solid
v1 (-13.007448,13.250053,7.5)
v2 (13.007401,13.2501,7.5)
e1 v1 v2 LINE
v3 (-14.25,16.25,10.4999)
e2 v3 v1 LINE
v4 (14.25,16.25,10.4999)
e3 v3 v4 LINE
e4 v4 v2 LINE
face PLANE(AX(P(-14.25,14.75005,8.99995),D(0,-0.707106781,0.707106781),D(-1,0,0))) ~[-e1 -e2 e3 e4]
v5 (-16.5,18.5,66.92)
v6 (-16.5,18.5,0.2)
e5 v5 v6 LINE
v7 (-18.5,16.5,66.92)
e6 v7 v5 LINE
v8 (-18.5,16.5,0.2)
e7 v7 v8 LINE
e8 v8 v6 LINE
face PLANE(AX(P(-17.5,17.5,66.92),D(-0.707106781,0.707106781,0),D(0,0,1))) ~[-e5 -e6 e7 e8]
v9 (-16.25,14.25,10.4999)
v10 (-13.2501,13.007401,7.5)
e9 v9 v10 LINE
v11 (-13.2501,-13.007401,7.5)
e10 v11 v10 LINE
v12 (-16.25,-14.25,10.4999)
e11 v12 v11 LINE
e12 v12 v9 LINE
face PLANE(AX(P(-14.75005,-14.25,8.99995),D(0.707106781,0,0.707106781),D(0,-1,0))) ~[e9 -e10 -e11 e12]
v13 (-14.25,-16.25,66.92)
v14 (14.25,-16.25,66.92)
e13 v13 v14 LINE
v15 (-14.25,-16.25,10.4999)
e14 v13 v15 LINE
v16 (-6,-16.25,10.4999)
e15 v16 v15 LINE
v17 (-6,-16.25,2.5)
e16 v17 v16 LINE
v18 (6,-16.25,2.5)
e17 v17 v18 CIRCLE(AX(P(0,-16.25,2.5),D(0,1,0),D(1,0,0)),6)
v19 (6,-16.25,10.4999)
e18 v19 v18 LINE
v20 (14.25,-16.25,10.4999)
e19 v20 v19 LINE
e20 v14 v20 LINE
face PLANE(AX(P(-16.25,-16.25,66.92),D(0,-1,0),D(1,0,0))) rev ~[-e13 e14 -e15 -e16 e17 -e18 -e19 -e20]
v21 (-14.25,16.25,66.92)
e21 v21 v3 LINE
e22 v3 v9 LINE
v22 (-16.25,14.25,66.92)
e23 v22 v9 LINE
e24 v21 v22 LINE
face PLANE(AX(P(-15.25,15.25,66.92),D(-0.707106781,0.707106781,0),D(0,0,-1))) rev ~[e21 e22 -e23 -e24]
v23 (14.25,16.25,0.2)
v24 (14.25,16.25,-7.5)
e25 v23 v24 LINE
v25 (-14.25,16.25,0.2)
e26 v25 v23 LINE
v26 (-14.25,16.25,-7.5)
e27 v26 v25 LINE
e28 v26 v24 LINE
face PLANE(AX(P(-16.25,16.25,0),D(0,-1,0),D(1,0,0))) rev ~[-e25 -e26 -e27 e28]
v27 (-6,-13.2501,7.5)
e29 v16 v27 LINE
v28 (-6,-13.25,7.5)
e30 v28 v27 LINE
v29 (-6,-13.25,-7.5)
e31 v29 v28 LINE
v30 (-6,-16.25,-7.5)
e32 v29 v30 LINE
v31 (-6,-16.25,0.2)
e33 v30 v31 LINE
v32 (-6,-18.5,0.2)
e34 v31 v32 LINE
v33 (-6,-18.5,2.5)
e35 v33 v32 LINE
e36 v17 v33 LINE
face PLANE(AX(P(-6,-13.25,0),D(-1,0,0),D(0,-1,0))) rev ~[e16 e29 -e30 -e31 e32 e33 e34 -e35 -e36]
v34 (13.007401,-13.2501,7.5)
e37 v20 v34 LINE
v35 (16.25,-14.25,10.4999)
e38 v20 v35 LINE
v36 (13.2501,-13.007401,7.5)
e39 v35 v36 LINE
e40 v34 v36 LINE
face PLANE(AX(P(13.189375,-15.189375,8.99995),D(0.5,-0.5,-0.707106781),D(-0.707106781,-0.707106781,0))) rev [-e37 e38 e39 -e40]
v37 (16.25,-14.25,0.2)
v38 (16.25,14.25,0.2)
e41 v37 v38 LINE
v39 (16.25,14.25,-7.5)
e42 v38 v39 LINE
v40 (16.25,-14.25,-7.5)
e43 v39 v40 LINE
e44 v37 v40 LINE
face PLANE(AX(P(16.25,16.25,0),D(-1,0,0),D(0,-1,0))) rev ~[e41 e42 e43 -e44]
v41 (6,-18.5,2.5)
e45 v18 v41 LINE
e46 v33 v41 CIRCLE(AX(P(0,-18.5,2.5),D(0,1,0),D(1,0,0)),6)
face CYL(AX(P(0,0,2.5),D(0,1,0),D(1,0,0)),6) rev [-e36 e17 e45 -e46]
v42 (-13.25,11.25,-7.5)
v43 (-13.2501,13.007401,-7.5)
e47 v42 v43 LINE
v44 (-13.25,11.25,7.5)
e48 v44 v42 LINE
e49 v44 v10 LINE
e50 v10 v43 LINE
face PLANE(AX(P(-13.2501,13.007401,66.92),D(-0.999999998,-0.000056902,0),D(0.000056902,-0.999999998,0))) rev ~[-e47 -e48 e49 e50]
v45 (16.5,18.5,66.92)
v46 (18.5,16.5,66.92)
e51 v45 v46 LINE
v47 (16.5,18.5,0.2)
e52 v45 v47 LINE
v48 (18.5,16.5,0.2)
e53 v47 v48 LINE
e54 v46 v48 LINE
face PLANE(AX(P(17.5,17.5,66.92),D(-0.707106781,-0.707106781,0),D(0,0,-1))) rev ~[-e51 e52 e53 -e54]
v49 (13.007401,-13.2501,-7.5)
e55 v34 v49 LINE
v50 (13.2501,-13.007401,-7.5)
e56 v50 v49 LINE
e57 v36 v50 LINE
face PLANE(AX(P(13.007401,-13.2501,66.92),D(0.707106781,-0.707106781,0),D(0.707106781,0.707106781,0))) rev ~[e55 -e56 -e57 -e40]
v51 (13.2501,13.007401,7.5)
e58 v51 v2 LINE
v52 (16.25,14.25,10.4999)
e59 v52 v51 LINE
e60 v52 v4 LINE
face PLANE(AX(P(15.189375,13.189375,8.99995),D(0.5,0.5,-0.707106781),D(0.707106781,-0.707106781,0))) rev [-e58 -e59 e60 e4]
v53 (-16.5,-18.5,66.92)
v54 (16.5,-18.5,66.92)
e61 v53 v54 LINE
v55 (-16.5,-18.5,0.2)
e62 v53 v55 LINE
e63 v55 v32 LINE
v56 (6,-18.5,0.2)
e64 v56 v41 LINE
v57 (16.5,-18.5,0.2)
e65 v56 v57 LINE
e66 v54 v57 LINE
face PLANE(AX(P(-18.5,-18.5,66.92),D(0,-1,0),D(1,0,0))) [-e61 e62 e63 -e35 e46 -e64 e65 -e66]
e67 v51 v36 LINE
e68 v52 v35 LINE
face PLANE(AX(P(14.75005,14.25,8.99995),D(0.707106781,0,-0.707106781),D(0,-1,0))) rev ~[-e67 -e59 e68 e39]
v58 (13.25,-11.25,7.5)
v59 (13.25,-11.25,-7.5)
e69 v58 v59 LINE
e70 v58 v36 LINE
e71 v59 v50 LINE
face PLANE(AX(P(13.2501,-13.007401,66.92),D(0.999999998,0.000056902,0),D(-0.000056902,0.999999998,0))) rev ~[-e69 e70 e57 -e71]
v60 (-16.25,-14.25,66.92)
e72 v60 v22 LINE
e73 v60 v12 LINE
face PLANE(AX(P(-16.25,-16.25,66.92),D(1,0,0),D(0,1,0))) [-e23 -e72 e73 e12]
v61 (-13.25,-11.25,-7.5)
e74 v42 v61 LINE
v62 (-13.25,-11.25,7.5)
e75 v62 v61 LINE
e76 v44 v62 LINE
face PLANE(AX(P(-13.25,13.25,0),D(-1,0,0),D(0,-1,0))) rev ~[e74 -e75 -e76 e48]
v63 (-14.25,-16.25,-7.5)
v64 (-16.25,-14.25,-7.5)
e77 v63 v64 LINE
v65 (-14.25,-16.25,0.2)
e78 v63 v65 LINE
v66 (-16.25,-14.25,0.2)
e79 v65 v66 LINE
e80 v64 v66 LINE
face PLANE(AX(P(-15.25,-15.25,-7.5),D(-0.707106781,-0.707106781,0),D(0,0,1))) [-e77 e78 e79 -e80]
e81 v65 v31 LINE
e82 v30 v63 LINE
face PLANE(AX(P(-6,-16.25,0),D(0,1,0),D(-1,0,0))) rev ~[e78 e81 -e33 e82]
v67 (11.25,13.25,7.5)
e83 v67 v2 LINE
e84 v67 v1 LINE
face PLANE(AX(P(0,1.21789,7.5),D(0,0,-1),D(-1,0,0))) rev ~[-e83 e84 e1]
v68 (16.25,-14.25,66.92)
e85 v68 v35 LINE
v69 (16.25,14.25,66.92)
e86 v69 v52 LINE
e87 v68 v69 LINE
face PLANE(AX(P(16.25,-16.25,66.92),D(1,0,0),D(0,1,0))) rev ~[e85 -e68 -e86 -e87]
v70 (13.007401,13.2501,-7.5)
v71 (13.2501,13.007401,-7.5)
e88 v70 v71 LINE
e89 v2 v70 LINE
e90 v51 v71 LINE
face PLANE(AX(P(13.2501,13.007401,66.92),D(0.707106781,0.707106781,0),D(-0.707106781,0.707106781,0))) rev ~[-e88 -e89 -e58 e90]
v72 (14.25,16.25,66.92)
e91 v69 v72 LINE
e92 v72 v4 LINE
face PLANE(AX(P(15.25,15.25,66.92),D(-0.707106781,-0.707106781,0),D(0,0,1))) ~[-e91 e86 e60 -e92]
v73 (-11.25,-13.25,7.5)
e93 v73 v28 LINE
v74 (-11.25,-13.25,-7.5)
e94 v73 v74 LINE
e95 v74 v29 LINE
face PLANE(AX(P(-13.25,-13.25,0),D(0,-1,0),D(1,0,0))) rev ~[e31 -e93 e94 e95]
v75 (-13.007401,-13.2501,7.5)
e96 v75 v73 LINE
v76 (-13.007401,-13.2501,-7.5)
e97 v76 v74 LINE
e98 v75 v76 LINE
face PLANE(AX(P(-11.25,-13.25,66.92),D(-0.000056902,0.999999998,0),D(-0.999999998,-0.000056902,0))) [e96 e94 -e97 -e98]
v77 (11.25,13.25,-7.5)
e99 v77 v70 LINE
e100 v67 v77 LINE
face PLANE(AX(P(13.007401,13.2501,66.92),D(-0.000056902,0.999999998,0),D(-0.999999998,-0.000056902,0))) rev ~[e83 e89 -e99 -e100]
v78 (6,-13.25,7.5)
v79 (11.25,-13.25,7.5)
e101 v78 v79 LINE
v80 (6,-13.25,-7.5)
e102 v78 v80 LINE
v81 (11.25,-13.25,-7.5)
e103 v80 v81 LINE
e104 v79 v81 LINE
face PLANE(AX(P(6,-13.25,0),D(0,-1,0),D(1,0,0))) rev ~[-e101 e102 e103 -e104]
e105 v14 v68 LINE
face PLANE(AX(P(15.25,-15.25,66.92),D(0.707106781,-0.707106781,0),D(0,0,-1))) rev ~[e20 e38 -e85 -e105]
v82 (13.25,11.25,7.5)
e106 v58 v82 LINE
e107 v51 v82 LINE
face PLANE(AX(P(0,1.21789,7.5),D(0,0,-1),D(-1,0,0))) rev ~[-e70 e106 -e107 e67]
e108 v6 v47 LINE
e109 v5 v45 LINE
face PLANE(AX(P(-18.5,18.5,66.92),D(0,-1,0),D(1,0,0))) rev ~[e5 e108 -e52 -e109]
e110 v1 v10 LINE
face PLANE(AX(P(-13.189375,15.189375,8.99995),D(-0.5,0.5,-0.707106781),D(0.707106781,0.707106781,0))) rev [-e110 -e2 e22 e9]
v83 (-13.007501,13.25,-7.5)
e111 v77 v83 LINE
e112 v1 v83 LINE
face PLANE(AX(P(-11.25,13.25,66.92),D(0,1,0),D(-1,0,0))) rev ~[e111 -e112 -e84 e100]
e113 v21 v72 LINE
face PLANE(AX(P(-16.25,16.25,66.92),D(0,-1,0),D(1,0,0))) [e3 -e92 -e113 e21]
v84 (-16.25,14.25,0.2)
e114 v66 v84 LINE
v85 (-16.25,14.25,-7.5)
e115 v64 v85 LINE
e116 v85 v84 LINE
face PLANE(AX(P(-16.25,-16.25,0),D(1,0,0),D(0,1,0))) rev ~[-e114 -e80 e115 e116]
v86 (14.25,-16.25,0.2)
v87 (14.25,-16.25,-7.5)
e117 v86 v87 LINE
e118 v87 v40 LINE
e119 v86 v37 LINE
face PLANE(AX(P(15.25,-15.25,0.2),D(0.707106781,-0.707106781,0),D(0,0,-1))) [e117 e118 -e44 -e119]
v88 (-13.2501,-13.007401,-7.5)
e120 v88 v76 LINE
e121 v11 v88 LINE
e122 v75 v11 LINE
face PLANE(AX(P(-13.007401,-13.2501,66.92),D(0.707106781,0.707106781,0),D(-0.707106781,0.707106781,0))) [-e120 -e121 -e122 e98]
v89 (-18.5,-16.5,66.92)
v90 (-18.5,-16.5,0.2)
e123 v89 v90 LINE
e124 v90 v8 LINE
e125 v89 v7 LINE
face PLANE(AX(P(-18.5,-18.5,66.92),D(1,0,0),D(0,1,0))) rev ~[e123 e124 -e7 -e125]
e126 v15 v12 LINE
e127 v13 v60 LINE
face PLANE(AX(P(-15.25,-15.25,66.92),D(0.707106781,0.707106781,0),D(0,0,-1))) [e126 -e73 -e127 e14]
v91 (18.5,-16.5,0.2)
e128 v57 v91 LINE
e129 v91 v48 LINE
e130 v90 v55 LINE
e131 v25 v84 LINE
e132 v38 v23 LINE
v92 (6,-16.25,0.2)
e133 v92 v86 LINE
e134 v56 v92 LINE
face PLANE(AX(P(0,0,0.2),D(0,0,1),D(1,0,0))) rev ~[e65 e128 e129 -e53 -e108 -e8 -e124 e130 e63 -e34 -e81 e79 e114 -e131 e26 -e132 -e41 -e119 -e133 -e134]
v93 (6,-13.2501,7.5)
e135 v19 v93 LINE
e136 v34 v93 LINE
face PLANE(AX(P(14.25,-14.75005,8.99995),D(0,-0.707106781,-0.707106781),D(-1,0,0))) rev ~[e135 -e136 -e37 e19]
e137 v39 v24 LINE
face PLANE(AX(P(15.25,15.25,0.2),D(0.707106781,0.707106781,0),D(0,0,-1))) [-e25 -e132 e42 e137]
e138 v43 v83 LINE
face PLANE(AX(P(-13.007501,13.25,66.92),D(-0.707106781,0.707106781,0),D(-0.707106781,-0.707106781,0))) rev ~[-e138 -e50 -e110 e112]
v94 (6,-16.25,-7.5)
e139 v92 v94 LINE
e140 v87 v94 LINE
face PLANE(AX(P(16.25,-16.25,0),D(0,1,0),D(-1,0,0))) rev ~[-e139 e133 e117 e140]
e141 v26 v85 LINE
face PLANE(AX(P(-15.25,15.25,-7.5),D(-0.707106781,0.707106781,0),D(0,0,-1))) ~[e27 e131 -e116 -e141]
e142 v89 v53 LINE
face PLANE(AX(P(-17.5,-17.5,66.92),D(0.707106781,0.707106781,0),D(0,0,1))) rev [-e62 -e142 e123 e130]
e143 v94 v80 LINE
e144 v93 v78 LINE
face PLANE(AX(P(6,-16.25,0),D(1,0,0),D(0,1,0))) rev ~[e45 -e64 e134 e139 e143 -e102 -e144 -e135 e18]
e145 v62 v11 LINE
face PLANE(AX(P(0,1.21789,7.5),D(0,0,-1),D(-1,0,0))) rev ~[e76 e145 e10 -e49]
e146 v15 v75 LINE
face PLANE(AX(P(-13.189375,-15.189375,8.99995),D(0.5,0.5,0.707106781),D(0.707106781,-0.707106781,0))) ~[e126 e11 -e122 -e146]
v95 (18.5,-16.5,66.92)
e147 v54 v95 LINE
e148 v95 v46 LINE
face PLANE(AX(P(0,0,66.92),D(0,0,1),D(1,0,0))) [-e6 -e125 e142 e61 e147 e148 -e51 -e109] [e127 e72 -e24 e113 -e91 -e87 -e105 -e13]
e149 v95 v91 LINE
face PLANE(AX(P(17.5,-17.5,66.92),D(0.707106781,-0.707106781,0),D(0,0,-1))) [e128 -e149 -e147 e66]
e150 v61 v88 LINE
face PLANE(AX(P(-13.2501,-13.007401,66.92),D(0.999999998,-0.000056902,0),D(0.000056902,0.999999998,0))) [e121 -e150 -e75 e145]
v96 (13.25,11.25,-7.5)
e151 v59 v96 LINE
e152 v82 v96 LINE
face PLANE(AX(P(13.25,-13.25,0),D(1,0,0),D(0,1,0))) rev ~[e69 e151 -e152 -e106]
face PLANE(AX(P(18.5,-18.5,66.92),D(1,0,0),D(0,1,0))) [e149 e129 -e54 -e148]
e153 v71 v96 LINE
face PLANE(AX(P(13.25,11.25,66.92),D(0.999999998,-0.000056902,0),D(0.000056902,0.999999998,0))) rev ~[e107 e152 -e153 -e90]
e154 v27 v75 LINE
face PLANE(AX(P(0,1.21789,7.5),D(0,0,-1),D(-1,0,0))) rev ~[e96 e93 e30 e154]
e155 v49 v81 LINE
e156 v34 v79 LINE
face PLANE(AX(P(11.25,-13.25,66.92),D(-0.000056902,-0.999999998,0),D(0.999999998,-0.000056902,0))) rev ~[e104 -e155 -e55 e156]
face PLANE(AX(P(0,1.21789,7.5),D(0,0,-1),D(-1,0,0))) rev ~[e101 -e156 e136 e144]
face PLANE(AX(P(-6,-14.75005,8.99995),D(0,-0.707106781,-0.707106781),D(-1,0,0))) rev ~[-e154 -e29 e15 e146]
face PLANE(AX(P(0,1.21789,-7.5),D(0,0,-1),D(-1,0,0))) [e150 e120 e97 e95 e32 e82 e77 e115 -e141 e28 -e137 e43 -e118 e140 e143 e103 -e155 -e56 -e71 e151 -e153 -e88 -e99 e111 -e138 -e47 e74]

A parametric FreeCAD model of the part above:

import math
import FreeCAD as App
import Part
import Sketcher


def edges_at(feature, points):
    """Names of the edges that pass closest to the given points."""
    edges = feature.Shape.Edges
    near = lambda p: min(range(len(edges)), key=lambda i: edges[i].distToShape(Part.Vertex(*p))[0])
    return sorted({f"Edge{near(p) + 1}" for p in points})

doc = App.newDocument("Part")
body = doc.addObject("PartDesign::Body", "Body")

sketch1 = body.newObject("Sketcher::SketchObject", "Sketch")
sketch1.AttachmentSupport = (doc.getObject("XY_Plane"), [""])
sketch1.MapMode = "FlatFace"
sketch1.addGeometry([
    Part.LineSegment(App.Vector(16.2, 16.2, 0), App.Vector(-16.2, 16.2, 0)),
    Part.LineSegment(App.Vector(-16.2, 16.2, 0), App.Vector(-16.2, -16.2, 0)),
    Part.LineSegment(App.Vector(-16.2, -16.2, 0), App.Vector(-6, -16.2, 0)),
    Part.LineSegment(App.Vector(-6, -16.2, 0), App.Vector(-6, -13.2, 0)),
    Part.LineSegment(App.Vector(-6, -13.2, 0), App.Vector(-13.2, -13.2, 0)),
    Part.LineSegment(App.Vector(-13.2, -13.2, 0), App.Vector(-13.2, 13.2, 0)),
    Part.LineSegment(App.Vector(-13.2, 13.2, 0), App.Vector(13.2, 13.2, 0)),
    Part.LineSegment(App.Vector(13.2, 13.2, 0), App.Vector(13.2, -13.2, 0)),
    Part.LineSegment(App.Vector(13.2, -13.2, 0), App.Vector(6, -13.2, 0)),
    Part.LineSegment(App.Vector(6, -13.2, 0), App.Vector(6, -16.2, 0)),
    Part.LineSegment(App.Vector(6, -16.2, 0), App.Vector(16.2, -16.2, 0)),
    Part.LineSegment(App.Vector(16.2, -16.2, 0), App.Vector(16.2, 16.2, 0)),
], False)
sketch1.addConstraint([
    Sketcher.Constraint("Coincident", 0, 2, 1, 1),
    Sketcher.Constraint("Coincident", 1, 2, 2, 1),
    Sketcher.Constraint("Coincident", 2, 2, 3, 1),
    Sketcher.Constraint("Coincident", 3, 2, 4, 1),
    Sketcher.Constraint("Coincident", 4, 2, 5, 1),
    Sketcher.Constraint("Coincident", 5, 2, 6, 1),
    Sketcher.Constraint("Coincident", 6, 2, 7, 1),
    Sketcher.Constraint("Coincident", 7, 2, 8, 1),
    Sketcher.Constraint("Coincident", 8, 2, 9, 1),
    Sketcher.Constraint("Coincident", 9, 2, 10, 1),
    Sketcher.Constraint("Coincident", 10, 2, 11, 1),
    Sketcher.Constraint("Coincident", 11, 2, 0, 1),
    Sketcher.Constraint("Horizontal", 0),
    Sketcher.Constraint("Vertical", 1),
    Sketcher.Constraint("Horizontal", 2),
    Sketcher.Constraint("Vertical", 3),
    Sketcher.Constraint("Horizontal", 4),
    Sketcher.Constraint("Vertical", 5),
    Sketcher.Constraint("Horizontal", 6),
    Sketcher.Constraint("Vertical", 7),
    Sketcher.Constraint("Horizontal", 8),
    Sketcher.Constraint("Vertical", 9),
    Sketcher.Constraint("Horizontal", 10),
    Sketcher.Constraint("Vertical", 11),
    Sketcher.Constraint("Symmetric", 4, 2, 6, 2, -1, 1),
    Sketcher.Constraint("Symmetric", 0, 2, 10, 2, -1, 1),
    Sketcher.Constraint("Symmetric", 3, 2, 8, 2, -2),
    Sketcher.Constraint("Horizontal", 2, 2, 9, 2),
    Sketcher.Constraint("Equal", 0, 1),
    Sketcher.Constraint("Equal", 6, 5),
    Sketcher.Constraint("DistanceY", 3, 1, 3, 2, 3.0),
    Sketcher.Constraint("DistanceX", 0, 2, 0, 1, 32.5),
    Sketcher.Constraint("DistanceX", 2, 2, -1, 1, 6.0),
])
pad1 = body.newObject("PartDesign::Pad", "Pad")
pad1.Profile = sketch1
pad1.Length = 15
pad1.Midplane = True

sketch2 = body.newObject("Sketcher::SketchObject", "Sketch001")
sketch2.AttachmentSupport = (doc.getObject("XY_Plane"), [""])
sketch2.MapMode = "FlatFace"
sketch2.AttachmentOffset = App.Placement(App.Vector(0, 0, 66.92), App.Rotation())
sketch2.addGeometry([
    Part.LineSegment(App.Vector(-18, 18, 0), App.Vector(-18, -18, 0)),
    Part.LineSegment(App.Vector(-18, -18, 0), App.Vector(18, -18, 0)),
    Part.LineSegment(App.Vector(18, -18, 0), App.Vector(18, 18, 0)),
    Part.LineSegment(App.Vector(18, 18, 0), App.Vector(-18, 18, 0)),
    Part.LineSegment(App.Vector(16, -16, 0), App.Vector(-16, -16, 0)),
    Part.LineSegment(App.Vector(-16, -16, 0), App.Vector(-16, 16, 0)),
    Part.LineSegment(App.Vector(-16, 16, 0), App.Vector(16, 16, 0)),
    Part.LineSegment(App.Vector(16, 16, 0), App.Vector(16, -16, 0)),
], False)
sketch2.addConstraint([
    Sketcher.Constraint("Coincident", 0, 2, 1, 1),
    Sketcher.Constraint("Coincident", 1, 2, 2, 1),
    Sketcher.Constraint("Coincident", 2, 2, 3, 1),
    Sketcher.Constraint("Coincident", 3, 2, 0, 1),
    Sketcher.Constraint("Coincident", 4, 2, 5, 1),
    Sketcher.Constraint("Coincident", 5, 2, 6, 1),
    Sketcher.Constraint("Coincident", 6, 2, 7, 1),
    Sketcher.Constraint("Coincident", 7, 2, 4, 1),
    Sketcher.Constraint("Vertical", 0),
    Sketcher.Constraint("Horizontal", 1),
    Sketcher.Constraint("Vertical", 2),
    Sketcher.Constraint("Horizontal", 3),
    Sketcher.Constraint("Horizontal", 4),
    Sketcher.Constraint("Vertical", 5),
    Sketcher.Constraint("Horizontal", 6),
    Sketcher.Constraint("Vertical", 7),
    Sketcher.Constraint("Symmetric", 0, 2, 2, 2, -1, 1),
    Sketcher.Constraint("Symmetric", 4, 2, 6, 2, -1, 1),
    Sketcher.Constraint("Equal", 3, 0),
    Sketcher.Constraint("Equal", 6, 5),
    Sketcher.Constraint("DistanceX", 1, 1, 1, 2, 37.0),
    Sketcher.Constraint("DistanceX", 4, 2, 4, 1, 32.5),
])
pad2 = body.newObject("PartDesign::Pad", "Pad001")
pad2.Profile = sketch2
pad2.Length = 66.72
pad2.Reversed = True
doc.recompute()

chamfer = body.newObject("PartDesign::Chamfer", "Chamfer")
chamfer.Base = (pad2, edges_at(pad2, [
    (18.5, -18.5, 33.56),
    (-18.5, -18.5, 33.56),
    (-18.5, 18.5, 33.56),
    (18.5, 18.5, 33.56),
    (-16.25, -16.25, 37.21),
    (16.25, 16.25, 37.21),
    (16.25, -16.25, 37.21),
    (-16.25, 16.25, 37.21),
    (-13.25, 13.25, 0),
    (13.25, 13.25, 0),
    (13.25, -13.25, 0),
    (-13.25, -13.25, 0),
    (16.25, -16.25, -3.65),
    (-16.25, -16.25, -3.65),
    (-16.25, 16.25, -3.65),
    (16.25, 16.25, -3.65),
]))
chamfer.Size = 2
doc.recompute()

chamfer2 = body.newObject("PartDesign::Chamfer", "Chamfer001")
chamfer2.Base = (chamfer, edges_at(chamfer, [
    (-16.25, 0, 7.5),
    (-15.25, 15.25, 7.5),
    (0, 16.25, 7.5),
    (15.25, 15.25, 7.5),
    (16.25, 0, 7.5),
    (15.25, -15.25, 7.5),
    (10.125, -16.25, 7.5),
    (-15.25, -15.25, 7.5),
    (-10.125, -16.25, 7.5),
]))
chamfer2.Size = 2.9999

sketch3 = body.newObject("Sketcher::SketchObject", "Sketch002")
sketch3.AttachmentSupport = (doc.getObject("XY_Plane"), [""])
sketch3.MapMode = "FlatFace"
sketch3.AttachmentOffset = App.Placement(App.Vector(0, 0, 66.92), App.Rotation())
sketch3.addGeometry([
    Part.LineSegment(App.Vector(-13.25, -11.25, 0), App.Vector(-13.25, -13.01, 0)),
    Part.LineSegment(App.Vector(-13.25, -13.01, 0), App.Vector(-13.01, -13.25, 0)),
    Part.LineSegment(App.Vector(-13.01, -13.25, 0), App.Vector(-11.25, -13.25, 0)),
    Part.LineSegment(App.Vector(-11.25, -13.25, 0), App.Vector(-13.25, -11.25, 0)),
    Part.LineSegment(App.Vector(11.25, -13.25, 0), App.Vector(13.01, -13.25, 0)),
    Part.LineSegment(App.Vector(13.01, -13.25, 0), App.Vector(13.25, -13.01, 0)),
    Part.LineSegment(App.Vector(13.25, -13.01, 0), App.Vector(13.25, -11.25, 0)),
    Part.LineSegment(App.Vector(13.25, -11.25, 0), App.Vector(11.25, -13.25, 0)),
    Part.LineSegment(App.Vector(-13.25, 11.25, 0), App.Vector(-11.25, 13.25, 0)),
    Part.LineSegment(App.Vector(-11.25, 13.25, 0), App.Vector(-13.01, 13.25, 0)),
    Part.LineSegment(App.Vector(-13.01, 13.25, 0), App.Vector(-13.25, 13.01, 0)),
    Part.LineSegment(App.Vector(-13.25, 13.01, 0), App.Vector(-13.25, 11.25, 0)),
    Part.LineSegment(App.Vector(11.25, 13.25, 0), App.Vector(13.25, 11.25, 0)),
    Part.LineSegment(App.Vector(13.25, 11.25, 0), App.Vector(13.25, 13.01, 0)),
    Part.LineSegment(App.Vector(13.25, 13.01, 0), App.Vector(13.01, 13.25, 0)),
    Part.LineSegment(App.Vector(13.01, 13.25, 0), App.Vector(11.25, 13.25, 0)),
], False)
sketch3.addConstraint([
    Sketcher.Constraint("Coincident", 0, 2, 1, 1),
    Sketcher.Constraint("Coincident", 1, 2, 2, 1),
    Sketcher.Constraint("Coincident", 2, 2, 3, 1),
    Sketcher.Constraint("Coincident", 3, 2, 0, 1),
    Sketcher.Constraint("Coincident", 4, 2, 5, 1),
    Sketcher.Constraint("Coincident", 5, 2, 6, 1),
    Sketcher.Constraint("Coincident", 6, 2, 7, 1),
    Sketcher.Constraint("Coincident", 7, 2, 4, 1),
    Sketcher.Constraint("Coincident", 8, 2, 9, 1),
    Sketcher.Constraint("Coincident", 9, 2, 10, 1),
    Sketcher.Constraint("Coincident", 10, 2, 11, 1),
    Sketcher.Constraint("Coincident", 11, 2, 8, 1),
    Sketcher.Constraint("Coincident", 12, 2, 13, 1),
    Sketcher.Constraint("Coincident", 13, 2, 14, 1),
    Sketcher.Constraint("Coincident", 14, 2, 15, 1),
    Sketcher.Constraint("Coincident", 15, 2, 12, 1),
    Sketcher.Constraint("Horizontal", 9),
    Sketcher.Constraint("Symmetric", 7, 2, 8, 2, -1, 1),
    Sketcher.Constraint("Symmetric", 5, 2, 10, 2, -1, 1),
    Sketcher.Constraint("Symmetric", 6, 2, 11, 2, -1, 1),
    Sketcher.Constraint("Symmetric", 3, 2, 12, 2, -1, 1),
    Sketcher.Constraint("Symmetric", 0, 2, 13, 2, -1, 1),
    Sketcher.Constraint("Symmetric", 1, 2, 14, 2, -1, 1),
    Sketcher.Constraint("Symmetric", 2, 2, 15, 2, -1, 1),
    Sketcher.Constraint("Symmetric", 1, 2, 4, 2, -2),
    Sketcher.Constraint("Symmetric", 0, 2, 5, 2, -2),
    Sketcher.Constraint("Symmetric", 3, 2, 6, 2, -2),
    Sketcher.Constraint("Symmetric", 2, 2, 7, 2, -2),
    Sketcher.Constraint("Parallel", 1, 3),
    Sketcher.Constraint("Perpendicular", 0, 4),
    Sketcher.Constraint("Perpendicular", 3, 5),
    Sketcher.Constraint("Parallel", 8, 10),
    Sketcher.Constraint("DistanceX", 3, 2, 2, 2, 2.0),
    Sketcher.Constraint("DistanceX", 2, 2, 6, 2, 24.5),
    Sketcher.Constraint("DistanceY", 3, 2, 8, 2, 24.5),
    Sketcher.Constraint("DistanceX", 9, 2, 9, 1, 1.757501),
    Sketcher.Constraint("Distance", 0, 1.757401),
])
pocket1 = body.newObject("PartDesign::Pocket", "Pocket")
pocket1.Profile = sketch3
pocket1.Type = "ThroughAll"

sketch4 = body.newObject("Sketcher::SketchObject", "Sketch003")
sketch4.AttachmentSupport = (doc.getObject("XZ_Plane"), [""])
sketch4.MapMode = "FlatFace"
sketch4.addGeometry([
    Part.LineSegment(App.Vector(-6, -8, 0), App.Vector(6, -8, 0)),
    Part.LineSegment(App.Vector(6, -8, 0), App.Vector(6, 2, 0)),
    Part.ArcOfCircle(Part.Circle(App.Vector(0, 2, 0), App.Vector(0, 0, 1), 6), math.radians(0), math.radians(180)),
    Part.LineSegment(App.Vector(-6, 2, 0), App.Vector(-6, -8, 0)),
], False)
sketch4.addConstraint([
    Sketcher.Constraint("Coincident", 0, 2, 1, 1),
    Sketcher.Constraint("Tangent", 1, 2, 2, 1),
    Sketcher.Constraint("Tangent", 2, 2, 3, 1),
    Sketcher.Constraint("Coincident", 3, 2, 0, 1),
    Sketcher.Constraint("Horizontal", 0),
    Sketcher.Constraint("Vertical", 1),
    Sketcher.Constraint("Vertical", 3),
    Sketcher.Constraint("PointOnObject", 2, 3, -2),
    Sketcher.Constraint("Radius", 2, 6.0),
    Sketcher.Constraint("DistanceY", 1, 1, 1, 2, 10.0),
    Sketcher.Constraint("DistanceY", -1, 1, 2, 3, 2.5),
])
pocket2 = body.newObject("PartDesign::Pocket", "Pocket001")
pocket2.Profile = sketch4
pocket2.Type = "ThroughAll"
pocket2.Reversed = True

doc.recompute()
